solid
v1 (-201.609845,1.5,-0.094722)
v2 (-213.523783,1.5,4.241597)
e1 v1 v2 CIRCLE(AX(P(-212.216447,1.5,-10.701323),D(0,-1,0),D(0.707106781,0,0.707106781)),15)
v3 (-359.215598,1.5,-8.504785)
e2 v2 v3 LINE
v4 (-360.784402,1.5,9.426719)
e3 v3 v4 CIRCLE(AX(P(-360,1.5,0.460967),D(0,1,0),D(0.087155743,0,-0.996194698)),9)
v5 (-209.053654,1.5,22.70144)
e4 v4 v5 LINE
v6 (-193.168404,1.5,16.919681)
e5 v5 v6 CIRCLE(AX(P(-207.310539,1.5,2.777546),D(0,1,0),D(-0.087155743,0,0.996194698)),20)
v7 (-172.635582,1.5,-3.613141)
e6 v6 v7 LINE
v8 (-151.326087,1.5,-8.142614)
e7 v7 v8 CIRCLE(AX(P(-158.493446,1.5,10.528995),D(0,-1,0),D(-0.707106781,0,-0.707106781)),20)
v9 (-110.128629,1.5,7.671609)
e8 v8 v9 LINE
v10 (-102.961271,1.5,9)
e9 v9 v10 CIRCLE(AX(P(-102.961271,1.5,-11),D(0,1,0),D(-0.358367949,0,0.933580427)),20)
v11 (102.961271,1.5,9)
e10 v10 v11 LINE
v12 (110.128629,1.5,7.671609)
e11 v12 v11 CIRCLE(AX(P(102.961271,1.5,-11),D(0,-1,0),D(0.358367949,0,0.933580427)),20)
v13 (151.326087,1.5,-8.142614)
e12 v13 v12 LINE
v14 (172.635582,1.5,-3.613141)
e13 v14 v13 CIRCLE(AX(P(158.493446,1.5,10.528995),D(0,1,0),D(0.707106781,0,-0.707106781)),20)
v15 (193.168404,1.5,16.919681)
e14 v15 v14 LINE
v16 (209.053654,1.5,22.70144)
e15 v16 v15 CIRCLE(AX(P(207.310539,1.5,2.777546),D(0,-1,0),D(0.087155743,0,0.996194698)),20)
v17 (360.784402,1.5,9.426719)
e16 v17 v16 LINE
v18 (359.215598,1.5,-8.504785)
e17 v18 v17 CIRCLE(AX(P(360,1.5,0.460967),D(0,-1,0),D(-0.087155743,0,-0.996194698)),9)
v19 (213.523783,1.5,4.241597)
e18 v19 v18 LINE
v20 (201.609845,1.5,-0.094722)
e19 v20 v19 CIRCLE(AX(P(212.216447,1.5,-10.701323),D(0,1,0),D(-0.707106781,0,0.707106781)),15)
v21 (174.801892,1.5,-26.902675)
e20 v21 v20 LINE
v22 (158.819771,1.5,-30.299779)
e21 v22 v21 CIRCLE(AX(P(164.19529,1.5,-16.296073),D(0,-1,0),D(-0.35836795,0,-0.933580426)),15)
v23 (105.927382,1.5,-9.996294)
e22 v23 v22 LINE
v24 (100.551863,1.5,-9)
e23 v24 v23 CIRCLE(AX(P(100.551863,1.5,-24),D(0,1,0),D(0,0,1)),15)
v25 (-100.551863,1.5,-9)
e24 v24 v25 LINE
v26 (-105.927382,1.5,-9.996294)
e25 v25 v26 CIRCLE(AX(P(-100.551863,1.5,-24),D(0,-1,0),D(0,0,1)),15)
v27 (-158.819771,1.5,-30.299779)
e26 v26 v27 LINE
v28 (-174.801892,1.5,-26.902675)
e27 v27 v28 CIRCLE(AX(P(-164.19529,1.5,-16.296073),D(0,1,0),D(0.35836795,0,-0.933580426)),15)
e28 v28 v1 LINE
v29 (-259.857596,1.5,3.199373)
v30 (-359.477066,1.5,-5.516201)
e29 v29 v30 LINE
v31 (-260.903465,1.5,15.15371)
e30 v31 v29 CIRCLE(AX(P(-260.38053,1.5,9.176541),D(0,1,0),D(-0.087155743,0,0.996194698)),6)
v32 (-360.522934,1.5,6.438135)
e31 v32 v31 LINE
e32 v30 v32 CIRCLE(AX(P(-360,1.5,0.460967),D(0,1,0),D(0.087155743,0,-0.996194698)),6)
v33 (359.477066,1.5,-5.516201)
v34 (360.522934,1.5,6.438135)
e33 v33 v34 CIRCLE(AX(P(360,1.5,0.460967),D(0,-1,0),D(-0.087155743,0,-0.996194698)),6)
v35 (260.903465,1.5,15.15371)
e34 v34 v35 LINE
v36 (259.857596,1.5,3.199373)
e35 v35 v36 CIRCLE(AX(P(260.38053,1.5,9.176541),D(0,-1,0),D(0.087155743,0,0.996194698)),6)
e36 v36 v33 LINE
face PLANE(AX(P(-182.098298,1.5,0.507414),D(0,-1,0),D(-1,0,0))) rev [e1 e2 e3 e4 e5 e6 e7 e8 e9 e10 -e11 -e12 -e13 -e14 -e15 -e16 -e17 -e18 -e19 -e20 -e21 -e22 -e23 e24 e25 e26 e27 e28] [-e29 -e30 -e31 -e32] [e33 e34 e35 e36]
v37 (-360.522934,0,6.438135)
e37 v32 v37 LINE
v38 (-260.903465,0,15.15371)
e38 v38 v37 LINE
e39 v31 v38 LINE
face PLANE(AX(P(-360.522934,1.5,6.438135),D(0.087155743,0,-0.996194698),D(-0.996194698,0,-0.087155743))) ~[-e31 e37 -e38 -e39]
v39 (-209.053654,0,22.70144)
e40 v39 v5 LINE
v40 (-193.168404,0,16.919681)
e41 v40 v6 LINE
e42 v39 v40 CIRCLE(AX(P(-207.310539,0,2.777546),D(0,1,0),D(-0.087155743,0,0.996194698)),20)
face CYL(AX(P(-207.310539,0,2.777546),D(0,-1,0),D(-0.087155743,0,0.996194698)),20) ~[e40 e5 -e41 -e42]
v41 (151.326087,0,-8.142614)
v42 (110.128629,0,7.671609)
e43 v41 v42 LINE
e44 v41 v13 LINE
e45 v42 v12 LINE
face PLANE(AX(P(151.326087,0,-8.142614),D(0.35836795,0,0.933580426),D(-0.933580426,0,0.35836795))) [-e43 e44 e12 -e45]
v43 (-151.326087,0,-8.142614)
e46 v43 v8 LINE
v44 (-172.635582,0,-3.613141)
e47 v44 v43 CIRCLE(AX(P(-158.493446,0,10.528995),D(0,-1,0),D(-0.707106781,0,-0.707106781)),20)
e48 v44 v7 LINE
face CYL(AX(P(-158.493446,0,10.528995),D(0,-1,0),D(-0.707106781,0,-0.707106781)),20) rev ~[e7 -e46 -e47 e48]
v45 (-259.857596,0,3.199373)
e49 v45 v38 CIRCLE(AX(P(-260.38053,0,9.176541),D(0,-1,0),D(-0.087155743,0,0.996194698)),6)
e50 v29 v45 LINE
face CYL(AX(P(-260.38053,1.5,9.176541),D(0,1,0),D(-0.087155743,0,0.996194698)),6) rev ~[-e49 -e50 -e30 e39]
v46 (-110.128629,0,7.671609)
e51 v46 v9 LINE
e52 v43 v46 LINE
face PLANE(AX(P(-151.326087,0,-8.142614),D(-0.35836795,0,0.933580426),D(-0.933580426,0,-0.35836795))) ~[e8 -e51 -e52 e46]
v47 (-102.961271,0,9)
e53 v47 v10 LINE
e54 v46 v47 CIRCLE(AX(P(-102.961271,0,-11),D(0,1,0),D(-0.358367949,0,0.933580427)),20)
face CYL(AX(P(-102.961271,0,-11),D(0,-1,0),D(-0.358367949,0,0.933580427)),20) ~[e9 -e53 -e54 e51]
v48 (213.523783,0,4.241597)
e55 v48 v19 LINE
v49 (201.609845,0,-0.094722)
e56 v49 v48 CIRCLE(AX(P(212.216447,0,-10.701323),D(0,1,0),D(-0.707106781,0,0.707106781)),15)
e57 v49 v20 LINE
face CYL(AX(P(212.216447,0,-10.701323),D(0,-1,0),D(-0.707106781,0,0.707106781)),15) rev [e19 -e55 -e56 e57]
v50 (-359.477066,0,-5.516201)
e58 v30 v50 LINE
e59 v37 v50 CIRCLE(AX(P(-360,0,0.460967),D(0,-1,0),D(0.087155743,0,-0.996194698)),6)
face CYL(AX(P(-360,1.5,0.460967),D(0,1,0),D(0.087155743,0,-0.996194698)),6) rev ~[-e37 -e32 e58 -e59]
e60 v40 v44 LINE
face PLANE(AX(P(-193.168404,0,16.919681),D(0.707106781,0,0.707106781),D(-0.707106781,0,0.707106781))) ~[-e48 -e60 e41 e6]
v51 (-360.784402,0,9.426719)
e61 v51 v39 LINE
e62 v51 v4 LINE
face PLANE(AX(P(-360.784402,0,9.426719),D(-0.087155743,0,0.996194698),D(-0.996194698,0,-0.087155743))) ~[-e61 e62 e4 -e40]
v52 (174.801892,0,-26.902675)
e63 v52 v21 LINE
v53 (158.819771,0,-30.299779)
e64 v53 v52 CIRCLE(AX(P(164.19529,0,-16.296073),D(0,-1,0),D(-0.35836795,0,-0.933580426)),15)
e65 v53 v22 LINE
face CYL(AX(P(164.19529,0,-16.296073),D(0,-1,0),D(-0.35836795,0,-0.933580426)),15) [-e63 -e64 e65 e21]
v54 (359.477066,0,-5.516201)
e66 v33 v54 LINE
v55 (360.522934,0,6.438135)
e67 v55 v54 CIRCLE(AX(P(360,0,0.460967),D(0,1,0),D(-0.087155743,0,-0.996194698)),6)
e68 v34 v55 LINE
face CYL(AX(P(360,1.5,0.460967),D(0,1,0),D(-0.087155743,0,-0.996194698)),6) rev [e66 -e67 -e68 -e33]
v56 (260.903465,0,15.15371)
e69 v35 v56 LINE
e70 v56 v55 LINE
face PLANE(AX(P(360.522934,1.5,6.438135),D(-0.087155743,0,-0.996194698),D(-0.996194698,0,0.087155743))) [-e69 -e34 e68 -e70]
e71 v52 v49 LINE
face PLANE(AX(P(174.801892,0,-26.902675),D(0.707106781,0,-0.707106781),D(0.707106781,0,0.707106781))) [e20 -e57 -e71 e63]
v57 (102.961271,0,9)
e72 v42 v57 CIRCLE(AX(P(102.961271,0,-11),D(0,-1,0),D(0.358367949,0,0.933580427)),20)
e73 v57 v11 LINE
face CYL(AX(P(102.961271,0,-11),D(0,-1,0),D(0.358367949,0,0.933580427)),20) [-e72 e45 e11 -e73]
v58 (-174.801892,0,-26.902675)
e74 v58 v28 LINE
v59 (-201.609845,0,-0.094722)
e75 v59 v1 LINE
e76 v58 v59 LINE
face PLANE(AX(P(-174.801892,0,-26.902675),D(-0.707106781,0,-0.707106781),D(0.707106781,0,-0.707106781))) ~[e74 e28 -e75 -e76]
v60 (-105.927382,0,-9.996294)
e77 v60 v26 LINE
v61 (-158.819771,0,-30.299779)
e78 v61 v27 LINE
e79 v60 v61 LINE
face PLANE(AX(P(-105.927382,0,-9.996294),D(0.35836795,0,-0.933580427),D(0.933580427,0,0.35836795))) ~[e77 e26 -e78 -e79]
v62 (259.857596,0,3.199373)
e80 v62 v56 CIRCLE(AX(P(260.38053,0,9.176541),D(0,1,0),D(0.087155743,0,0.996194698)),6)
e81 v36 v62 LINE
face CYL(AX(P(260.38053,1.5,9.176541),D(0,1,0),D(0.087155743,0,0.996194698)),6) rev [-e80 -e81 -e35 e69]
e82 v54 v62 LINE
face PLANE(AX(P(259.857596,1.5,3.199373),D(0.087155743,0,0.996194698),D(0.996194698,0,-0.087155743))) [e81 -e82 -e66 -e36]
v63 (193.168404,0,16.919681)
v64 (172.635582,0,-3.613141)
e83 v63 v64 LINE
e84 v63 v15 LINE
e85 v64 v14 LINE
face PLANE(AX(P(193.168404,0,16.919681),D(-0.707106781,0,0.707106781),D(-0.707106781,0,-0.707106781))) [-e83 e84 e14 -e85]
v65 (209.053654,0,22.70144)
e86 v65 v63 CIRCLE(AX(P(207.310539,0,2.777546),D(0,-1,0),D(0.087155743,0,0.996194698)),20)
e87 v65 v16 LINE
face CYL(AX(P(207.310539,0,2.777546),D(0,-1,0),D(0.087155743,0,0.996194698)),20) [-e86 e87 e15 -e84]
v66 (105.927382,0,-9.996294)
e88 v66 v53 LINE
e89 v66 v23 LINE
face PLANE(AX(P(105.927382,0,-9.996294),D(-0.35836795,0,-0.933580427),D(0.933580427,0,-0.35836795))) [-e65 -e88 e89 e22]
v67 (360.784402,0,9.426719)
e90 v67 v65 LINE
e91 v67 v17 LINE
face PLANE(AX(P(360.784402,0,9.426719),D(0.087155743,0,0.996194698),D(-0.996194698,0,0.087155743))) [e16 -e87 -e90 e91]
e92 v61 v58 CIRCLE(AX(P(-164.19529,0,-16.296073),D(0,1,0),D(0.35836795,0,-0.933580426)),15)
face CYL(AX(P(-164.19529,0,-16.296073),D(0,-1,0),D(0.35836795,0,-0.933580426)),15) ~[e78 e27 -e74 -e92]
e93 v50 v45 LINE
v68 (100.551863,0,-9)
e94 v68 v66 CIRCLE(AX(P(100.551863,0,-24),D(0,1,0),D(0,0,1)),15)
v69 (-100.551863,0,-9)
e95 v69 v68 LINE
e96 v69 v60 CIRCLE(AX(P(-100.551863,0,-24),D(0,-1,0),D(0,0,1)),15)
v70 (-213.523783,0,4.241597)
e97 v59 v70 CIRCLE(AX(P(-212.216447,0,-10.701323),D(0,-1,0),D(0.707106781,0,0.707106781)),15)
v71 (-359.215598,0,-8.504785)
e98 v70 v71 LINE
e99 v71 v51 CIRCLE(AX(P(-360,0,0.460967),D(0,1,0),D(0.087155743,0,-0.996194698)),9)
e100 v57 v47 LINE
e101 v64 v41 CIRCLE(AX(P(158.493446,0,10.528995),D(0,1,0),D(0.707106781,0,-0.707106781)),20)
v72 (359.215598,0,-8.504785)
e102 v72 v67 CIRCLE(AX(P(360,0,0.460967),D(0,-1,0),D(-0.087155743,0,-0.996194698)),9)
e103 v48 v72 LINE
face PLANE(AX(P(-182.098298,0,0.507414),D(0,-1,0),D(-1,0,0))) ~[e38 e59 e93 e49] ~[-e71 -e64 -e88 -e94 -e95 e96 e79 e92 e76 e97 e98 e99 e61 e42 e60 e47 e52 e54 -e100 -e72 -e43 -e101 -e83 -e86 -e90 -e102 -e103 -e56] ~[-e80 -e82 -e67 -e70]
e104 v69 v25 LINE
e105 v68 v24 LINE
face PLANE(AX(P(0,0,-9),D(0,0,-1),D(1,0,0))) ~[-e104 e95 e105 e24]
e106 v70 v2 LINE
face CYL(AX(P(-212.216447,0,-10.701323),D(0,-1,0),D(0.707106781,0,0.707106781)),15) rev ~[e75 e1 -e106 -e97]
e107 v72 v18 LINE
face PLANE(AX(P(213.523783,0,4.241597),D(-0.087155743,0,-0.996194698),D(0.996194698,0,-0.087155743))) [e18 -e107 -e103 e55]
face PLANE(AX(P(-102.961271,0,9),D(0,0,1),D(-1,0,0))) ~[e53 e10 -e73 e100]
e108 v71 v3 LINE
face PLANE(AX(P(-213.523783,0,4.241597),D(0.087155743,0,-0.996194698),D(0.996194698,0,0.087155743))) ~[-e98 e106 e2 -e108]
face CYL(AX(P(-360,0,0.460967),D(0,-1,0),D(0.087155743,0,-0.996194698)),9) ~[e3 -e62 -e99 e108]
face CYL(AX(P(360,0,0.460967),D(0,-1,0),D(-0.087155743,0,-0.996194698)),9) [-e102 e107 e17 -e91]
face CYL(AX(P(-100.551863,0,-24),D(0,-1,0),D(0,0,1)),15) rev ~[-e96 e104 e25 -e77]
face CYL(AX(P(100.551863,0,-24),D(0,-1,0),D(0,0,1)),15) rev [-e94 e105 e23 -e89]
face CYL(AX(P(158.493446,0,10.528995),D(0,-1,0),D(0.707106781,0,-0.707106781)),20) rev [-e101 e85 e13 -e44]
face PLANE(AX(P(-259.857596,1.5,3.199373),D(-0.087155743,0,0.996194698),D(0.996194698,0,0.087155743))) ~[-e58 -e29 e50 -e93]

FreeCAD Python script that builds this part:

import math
import FreeCAD as App
import Part
import Sketcher

V = App.Vector
Q = App.Units.Quantity

doc = App.newDocument("Part")
body = doc.addObject("PartDesign::Body", "Body")

sketch1 = body.newObject("Sketcher::SketchObject", "Sketch")
sketch1.AttachmentSupport = (doc.getObject("XZ_Plane"), [""])
sketch1.MapMode = "FlatFace"
sketch1.addGeometry([
    Part.LineSegment(V(159, -30, 0), V(106, -10, 0)),
    Part.ArcOfCircle(Part.Circle(V(101, -24, 0), V(0, 0, 1), 15), math.radians(69), math.radians(90)),
    Part.LineSegment(V(101, -9, 0), V(0, -9, 0)),
    Part.LineSegment(V(0, -9, 0), V(0, 9, 0)),
    Part.LineSegment(V(0, 9, 0), V(103, 9, 0)),
    Part.ArcOfCircle(Part.Circle(V(103, -11, 0), V(0, 0, 1), 20), math.radians(69), math.radians(90)),
    Part.LineSegment(V(110, 8, 0), V(151, -8, 0)),
    Part.ArcOfCircle(Part.Circle(V(158, 11, 0), V(0, 0, 1), 20), math.radians(-111), math.radians(-45)),
    Part.LineSegment(V(173, -4, 0), V(193, 17, 0)),
    Part.ArcOfCircle(Part.Circle(V(207, 3, 0), V(0, 0, 1), 20), math.radians(85), math.radians(135)),
    Part.LineSegment(V(209, 23, 0), V(361, 9, 0)),
    Part.ArcOfCircle(Part.Circle(V(360, 0, 0), V(0, 0, 1), 9), math.radians(-95), math.radians(85)),
    Part.LineSegment(V(359, -9, 0), V(214, 4, 0)),
    Part.ArcOfCircle(Part.Circle(V(212, -11, 0), V(0, 0, 1), 15), math.radians(85), math.radians(135)),
    Part.LineSegment(V(202, 0, 0), V(175, -27, 0)),
    Part.ArcOfCircle(Part.Circle(V(164, -16, 0), V(0, 0, 1), 15), math.radians(-111), math.radians(-45)),
], False)
sketch1.addConstraint([
    Sketcher.Constraint("Tangent", 0, 2, 1, 1),
    Sketcher.Constraint("Tangent", 1, 2, 2, 1),
    Sketcher.Constraint("Coincident", 2, 2, 3, 1),
    Sketcher.Constraint("Coincident", 3, 2, 4, 1),
    Sketcher.Constraint("Tangent", 4, 2, 5, 2),
    Sketcher.Constraint("Tangent", 5, 1, 6, 1),
    Sketcher.Constraint("Tangent", 6, 2, 7, 1),
    Sketcher.Constraint("Tangent", 7, 2, 8, 1),
    Sketcher.Constraint("Tangent", 8, 2, 9, 2),
    Sketcher.Constraint("Tangent", 9, 1, 10, 1),
    Sketcher.Constraint("Tangent", 10, 2, 11, 2),
    Sketcher.Constraint("Tangent", 11, 1, 12, 1),
    Sketcher.Constraint("Tangent", 12, 2, 13, 1),
    Sketcher.Constraint("Tangent", 13, 2, 14, 1),
    Sketcher.Constraint("Tangent", 14, 2, 15, 2),
    Sketcher.Constraint("Tangent", 15, 1, 0, 1),
    Sketcher.Constraint("Horizontal", 2),
    Sketcher.Constraint("Vertical", 3),
    Sketcher.Constraint("Horizontal", 4),
    Sketcher.Constraint("Equal", 5, 7),
    Sketcher.Constraint("Equal", 7, 9),
    Sketcher.Constraint("Equal", 1, 13),
    Sketcher.Constraint("Equal", 13, 15),
    Sketcher.Constraint("Symmetric", 2, 2, 3, 2, -1, 1),
    Sketcher.Constraint("Parallel", 0, 6),
    Sketcher.Constraint("Parallel", 10, 12),
    Sketcher.Constraint("Parallel", 8, 14),
    Sketcher.Constraint("Radius", 1, 15.0),
    Sketcher.Constraint("Radius", 5, 20.0),
    Sketcher.Constraint("Radius", 11, 9.0),
    Sketcher.Constraint("DistanceY", 3, 1, 3, 2, 18.0),
    Sketcher.Constraint("Angle", 0, Q("159 deg")),
    Sketcher.Constraint("Angle", 8, Q("45 deg")),
    Sketcher.Constraint("Angle", 10, Q("-5 deg")),
    Sketcher.Constraint("DistanceX", -1, 1, 11, 3, 360.0),
    Sketcher.Constraint("DistanceX", 7, 3, 13, 3, 53.723001),
    Sketcher.Constraint("DistanceX", 4, 1, 4, 2, 102.961271),
    Sketcher.Constraint("Distance", 6, 44.12845),
    Sketcher.Constraint("Distance", 14, 37.912171),
    Sketcher.Constraint("DistanceX", 2, 2, 2, 1, 100.551863),
])
pad1 = body.newObject("PartDesign::Pad", "Pad")
pad1.Profile = sketch1
pad1.Length = 1.5
pad1.Reversed = True

sketch2 = body.newObject("Sketcher::SketchObject", "Sketch001")
sketch2.AttachmentSupport = (doc.getObject("XZ_Plane"), [""])
sketch2.MapMode = "FlatFace"
sketch2.AttachmentOffset = App.Placement(V(0, 0, -1.5), App.Rotation())
sketch2.addGeometry([
    Part.LineSegment(V(359, -6, 0), V(260, 3, 0)),
    Part.ArcOfCircle(Part.Circle(V(260, 9, 0), V(0, 0, 1), 6), math.radians(85), math.radians(265)),
    Part.LineSegment(V(261, 15, 0), V(361, 6, 0)),
    Part.ArcOfCircle(Part.Circle(V(360, 0, 0), V(0, 0, 1), 6), math.radians(-95), math.radians(85)),
], False)
sketch2.addConstraint([
    Sketcher.Constraint("Tangent", 0, 2, 1, 2),
    Sketcher.Constraint("Tangent", 1, 1, 2, 1),
    Sketcher.Constraint("Tangent", 2, 2, 3, 2),
    Sketcher.Constraint("Tangent", 3, 1, 0, 1),
    Sketcher.Constraint("Equal", 1, 3),
    Sketcher.Constraint("Radius", 1, 6.0),
    Sketcher.Constraint("Angle", 0, Q("175 deg")),
    Sketcher.Constraint("Distance", 0, 100.0),
    Sketcher.Constraint("DistanceX", -1, 1, 3, 3, 360.0),
    Sketcher.Constraint("DistanceY", 3, 1, -1, 1, 5.516201),
])
pocket1 = body.newObject("PartDesign::Pocket", "Pocket")
pocket1.Profile = sketch2
pocket1.Type = "ThroughAll"
pocket1.Reversed = True
body2 = doc.addObject("PartDesign::Body", "Body001")
doc.recompute()

body2.BaseFeature = body
doc.recompute()

mirroring = doc.addObject("Part::Mirroring", "Mirroring")
mirroring.Source = body
mirroring.Base = V(0, 0, 0)
mirroring.Normal = V(1, 0, 0)
body3 = doc.addObject("PartDesign::Body", "Body002")
body3.BaseFeature = mirroring
boolean = body2.newObject("PartDesign::Boolean", "Boolean")
boolean.Type = "Fuse"
boolean.addObjects([body3])
doc.recompute()
mirroring.Visibility = False

doc.recompute()
